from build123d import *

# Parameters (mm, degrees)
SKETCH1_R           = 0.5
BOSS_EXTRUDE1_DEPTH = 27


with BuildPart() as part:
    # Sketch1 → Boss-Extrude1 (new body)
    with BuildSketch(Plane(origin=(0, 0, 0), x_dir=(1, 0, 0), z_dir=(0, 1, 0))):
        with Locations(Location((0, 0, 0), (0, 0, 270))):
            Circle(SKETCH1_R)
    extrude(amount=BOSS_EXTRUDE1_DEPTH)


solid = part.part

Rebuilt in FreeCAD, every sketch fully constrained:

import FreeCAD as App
import Part
import Sketcher
Q = App.Units.Quantity

doc = App.newDocument("Part")
params = doc.addObject("Spreadsheet::Sheet", "Params")
for row, (alias, value) in enumerate([
    ("sketch1_diameter", "1 mm"),
    ("pad1_length", "27 mm"),
], start=1):
    params.set(f"A{row}", alias)
    params.set(f"B{row}", "=" + value)
    params.setAlias(f"B{row}", alias)

body = doc.addObject("PartDesign::Body", "Body")

sketch1 = body.newObject("Sketcher::SketchObject", "Sketch")
sketch1.AttachmentSupport = (doc.getObject("XZ_Plane"), [""])
sketch1.MapMode = "FlatFace"
sketch1.addGeometry(Part.Circle(App.Vector(0, 0, 0), App.Vector(0, 0, 1), 0.5), False)
sketch1.addConstraint([
    Sketcher.Constraint("Coincident", 0, 3, -1, 1),
    Sketcher.Constraint("Diameter", 0, Q("1 mm")),
])
sketch1.setExpression("Constraints[1]", "Params.sketch1_diameter")
pad1 = body.newObject("PartDesign::Pad", "Pad")
pad1.Profile = sketch1
pad1.setExpression("Length", "Params.pad1_length")
pad1.Reversed = True

doc.recompute()
